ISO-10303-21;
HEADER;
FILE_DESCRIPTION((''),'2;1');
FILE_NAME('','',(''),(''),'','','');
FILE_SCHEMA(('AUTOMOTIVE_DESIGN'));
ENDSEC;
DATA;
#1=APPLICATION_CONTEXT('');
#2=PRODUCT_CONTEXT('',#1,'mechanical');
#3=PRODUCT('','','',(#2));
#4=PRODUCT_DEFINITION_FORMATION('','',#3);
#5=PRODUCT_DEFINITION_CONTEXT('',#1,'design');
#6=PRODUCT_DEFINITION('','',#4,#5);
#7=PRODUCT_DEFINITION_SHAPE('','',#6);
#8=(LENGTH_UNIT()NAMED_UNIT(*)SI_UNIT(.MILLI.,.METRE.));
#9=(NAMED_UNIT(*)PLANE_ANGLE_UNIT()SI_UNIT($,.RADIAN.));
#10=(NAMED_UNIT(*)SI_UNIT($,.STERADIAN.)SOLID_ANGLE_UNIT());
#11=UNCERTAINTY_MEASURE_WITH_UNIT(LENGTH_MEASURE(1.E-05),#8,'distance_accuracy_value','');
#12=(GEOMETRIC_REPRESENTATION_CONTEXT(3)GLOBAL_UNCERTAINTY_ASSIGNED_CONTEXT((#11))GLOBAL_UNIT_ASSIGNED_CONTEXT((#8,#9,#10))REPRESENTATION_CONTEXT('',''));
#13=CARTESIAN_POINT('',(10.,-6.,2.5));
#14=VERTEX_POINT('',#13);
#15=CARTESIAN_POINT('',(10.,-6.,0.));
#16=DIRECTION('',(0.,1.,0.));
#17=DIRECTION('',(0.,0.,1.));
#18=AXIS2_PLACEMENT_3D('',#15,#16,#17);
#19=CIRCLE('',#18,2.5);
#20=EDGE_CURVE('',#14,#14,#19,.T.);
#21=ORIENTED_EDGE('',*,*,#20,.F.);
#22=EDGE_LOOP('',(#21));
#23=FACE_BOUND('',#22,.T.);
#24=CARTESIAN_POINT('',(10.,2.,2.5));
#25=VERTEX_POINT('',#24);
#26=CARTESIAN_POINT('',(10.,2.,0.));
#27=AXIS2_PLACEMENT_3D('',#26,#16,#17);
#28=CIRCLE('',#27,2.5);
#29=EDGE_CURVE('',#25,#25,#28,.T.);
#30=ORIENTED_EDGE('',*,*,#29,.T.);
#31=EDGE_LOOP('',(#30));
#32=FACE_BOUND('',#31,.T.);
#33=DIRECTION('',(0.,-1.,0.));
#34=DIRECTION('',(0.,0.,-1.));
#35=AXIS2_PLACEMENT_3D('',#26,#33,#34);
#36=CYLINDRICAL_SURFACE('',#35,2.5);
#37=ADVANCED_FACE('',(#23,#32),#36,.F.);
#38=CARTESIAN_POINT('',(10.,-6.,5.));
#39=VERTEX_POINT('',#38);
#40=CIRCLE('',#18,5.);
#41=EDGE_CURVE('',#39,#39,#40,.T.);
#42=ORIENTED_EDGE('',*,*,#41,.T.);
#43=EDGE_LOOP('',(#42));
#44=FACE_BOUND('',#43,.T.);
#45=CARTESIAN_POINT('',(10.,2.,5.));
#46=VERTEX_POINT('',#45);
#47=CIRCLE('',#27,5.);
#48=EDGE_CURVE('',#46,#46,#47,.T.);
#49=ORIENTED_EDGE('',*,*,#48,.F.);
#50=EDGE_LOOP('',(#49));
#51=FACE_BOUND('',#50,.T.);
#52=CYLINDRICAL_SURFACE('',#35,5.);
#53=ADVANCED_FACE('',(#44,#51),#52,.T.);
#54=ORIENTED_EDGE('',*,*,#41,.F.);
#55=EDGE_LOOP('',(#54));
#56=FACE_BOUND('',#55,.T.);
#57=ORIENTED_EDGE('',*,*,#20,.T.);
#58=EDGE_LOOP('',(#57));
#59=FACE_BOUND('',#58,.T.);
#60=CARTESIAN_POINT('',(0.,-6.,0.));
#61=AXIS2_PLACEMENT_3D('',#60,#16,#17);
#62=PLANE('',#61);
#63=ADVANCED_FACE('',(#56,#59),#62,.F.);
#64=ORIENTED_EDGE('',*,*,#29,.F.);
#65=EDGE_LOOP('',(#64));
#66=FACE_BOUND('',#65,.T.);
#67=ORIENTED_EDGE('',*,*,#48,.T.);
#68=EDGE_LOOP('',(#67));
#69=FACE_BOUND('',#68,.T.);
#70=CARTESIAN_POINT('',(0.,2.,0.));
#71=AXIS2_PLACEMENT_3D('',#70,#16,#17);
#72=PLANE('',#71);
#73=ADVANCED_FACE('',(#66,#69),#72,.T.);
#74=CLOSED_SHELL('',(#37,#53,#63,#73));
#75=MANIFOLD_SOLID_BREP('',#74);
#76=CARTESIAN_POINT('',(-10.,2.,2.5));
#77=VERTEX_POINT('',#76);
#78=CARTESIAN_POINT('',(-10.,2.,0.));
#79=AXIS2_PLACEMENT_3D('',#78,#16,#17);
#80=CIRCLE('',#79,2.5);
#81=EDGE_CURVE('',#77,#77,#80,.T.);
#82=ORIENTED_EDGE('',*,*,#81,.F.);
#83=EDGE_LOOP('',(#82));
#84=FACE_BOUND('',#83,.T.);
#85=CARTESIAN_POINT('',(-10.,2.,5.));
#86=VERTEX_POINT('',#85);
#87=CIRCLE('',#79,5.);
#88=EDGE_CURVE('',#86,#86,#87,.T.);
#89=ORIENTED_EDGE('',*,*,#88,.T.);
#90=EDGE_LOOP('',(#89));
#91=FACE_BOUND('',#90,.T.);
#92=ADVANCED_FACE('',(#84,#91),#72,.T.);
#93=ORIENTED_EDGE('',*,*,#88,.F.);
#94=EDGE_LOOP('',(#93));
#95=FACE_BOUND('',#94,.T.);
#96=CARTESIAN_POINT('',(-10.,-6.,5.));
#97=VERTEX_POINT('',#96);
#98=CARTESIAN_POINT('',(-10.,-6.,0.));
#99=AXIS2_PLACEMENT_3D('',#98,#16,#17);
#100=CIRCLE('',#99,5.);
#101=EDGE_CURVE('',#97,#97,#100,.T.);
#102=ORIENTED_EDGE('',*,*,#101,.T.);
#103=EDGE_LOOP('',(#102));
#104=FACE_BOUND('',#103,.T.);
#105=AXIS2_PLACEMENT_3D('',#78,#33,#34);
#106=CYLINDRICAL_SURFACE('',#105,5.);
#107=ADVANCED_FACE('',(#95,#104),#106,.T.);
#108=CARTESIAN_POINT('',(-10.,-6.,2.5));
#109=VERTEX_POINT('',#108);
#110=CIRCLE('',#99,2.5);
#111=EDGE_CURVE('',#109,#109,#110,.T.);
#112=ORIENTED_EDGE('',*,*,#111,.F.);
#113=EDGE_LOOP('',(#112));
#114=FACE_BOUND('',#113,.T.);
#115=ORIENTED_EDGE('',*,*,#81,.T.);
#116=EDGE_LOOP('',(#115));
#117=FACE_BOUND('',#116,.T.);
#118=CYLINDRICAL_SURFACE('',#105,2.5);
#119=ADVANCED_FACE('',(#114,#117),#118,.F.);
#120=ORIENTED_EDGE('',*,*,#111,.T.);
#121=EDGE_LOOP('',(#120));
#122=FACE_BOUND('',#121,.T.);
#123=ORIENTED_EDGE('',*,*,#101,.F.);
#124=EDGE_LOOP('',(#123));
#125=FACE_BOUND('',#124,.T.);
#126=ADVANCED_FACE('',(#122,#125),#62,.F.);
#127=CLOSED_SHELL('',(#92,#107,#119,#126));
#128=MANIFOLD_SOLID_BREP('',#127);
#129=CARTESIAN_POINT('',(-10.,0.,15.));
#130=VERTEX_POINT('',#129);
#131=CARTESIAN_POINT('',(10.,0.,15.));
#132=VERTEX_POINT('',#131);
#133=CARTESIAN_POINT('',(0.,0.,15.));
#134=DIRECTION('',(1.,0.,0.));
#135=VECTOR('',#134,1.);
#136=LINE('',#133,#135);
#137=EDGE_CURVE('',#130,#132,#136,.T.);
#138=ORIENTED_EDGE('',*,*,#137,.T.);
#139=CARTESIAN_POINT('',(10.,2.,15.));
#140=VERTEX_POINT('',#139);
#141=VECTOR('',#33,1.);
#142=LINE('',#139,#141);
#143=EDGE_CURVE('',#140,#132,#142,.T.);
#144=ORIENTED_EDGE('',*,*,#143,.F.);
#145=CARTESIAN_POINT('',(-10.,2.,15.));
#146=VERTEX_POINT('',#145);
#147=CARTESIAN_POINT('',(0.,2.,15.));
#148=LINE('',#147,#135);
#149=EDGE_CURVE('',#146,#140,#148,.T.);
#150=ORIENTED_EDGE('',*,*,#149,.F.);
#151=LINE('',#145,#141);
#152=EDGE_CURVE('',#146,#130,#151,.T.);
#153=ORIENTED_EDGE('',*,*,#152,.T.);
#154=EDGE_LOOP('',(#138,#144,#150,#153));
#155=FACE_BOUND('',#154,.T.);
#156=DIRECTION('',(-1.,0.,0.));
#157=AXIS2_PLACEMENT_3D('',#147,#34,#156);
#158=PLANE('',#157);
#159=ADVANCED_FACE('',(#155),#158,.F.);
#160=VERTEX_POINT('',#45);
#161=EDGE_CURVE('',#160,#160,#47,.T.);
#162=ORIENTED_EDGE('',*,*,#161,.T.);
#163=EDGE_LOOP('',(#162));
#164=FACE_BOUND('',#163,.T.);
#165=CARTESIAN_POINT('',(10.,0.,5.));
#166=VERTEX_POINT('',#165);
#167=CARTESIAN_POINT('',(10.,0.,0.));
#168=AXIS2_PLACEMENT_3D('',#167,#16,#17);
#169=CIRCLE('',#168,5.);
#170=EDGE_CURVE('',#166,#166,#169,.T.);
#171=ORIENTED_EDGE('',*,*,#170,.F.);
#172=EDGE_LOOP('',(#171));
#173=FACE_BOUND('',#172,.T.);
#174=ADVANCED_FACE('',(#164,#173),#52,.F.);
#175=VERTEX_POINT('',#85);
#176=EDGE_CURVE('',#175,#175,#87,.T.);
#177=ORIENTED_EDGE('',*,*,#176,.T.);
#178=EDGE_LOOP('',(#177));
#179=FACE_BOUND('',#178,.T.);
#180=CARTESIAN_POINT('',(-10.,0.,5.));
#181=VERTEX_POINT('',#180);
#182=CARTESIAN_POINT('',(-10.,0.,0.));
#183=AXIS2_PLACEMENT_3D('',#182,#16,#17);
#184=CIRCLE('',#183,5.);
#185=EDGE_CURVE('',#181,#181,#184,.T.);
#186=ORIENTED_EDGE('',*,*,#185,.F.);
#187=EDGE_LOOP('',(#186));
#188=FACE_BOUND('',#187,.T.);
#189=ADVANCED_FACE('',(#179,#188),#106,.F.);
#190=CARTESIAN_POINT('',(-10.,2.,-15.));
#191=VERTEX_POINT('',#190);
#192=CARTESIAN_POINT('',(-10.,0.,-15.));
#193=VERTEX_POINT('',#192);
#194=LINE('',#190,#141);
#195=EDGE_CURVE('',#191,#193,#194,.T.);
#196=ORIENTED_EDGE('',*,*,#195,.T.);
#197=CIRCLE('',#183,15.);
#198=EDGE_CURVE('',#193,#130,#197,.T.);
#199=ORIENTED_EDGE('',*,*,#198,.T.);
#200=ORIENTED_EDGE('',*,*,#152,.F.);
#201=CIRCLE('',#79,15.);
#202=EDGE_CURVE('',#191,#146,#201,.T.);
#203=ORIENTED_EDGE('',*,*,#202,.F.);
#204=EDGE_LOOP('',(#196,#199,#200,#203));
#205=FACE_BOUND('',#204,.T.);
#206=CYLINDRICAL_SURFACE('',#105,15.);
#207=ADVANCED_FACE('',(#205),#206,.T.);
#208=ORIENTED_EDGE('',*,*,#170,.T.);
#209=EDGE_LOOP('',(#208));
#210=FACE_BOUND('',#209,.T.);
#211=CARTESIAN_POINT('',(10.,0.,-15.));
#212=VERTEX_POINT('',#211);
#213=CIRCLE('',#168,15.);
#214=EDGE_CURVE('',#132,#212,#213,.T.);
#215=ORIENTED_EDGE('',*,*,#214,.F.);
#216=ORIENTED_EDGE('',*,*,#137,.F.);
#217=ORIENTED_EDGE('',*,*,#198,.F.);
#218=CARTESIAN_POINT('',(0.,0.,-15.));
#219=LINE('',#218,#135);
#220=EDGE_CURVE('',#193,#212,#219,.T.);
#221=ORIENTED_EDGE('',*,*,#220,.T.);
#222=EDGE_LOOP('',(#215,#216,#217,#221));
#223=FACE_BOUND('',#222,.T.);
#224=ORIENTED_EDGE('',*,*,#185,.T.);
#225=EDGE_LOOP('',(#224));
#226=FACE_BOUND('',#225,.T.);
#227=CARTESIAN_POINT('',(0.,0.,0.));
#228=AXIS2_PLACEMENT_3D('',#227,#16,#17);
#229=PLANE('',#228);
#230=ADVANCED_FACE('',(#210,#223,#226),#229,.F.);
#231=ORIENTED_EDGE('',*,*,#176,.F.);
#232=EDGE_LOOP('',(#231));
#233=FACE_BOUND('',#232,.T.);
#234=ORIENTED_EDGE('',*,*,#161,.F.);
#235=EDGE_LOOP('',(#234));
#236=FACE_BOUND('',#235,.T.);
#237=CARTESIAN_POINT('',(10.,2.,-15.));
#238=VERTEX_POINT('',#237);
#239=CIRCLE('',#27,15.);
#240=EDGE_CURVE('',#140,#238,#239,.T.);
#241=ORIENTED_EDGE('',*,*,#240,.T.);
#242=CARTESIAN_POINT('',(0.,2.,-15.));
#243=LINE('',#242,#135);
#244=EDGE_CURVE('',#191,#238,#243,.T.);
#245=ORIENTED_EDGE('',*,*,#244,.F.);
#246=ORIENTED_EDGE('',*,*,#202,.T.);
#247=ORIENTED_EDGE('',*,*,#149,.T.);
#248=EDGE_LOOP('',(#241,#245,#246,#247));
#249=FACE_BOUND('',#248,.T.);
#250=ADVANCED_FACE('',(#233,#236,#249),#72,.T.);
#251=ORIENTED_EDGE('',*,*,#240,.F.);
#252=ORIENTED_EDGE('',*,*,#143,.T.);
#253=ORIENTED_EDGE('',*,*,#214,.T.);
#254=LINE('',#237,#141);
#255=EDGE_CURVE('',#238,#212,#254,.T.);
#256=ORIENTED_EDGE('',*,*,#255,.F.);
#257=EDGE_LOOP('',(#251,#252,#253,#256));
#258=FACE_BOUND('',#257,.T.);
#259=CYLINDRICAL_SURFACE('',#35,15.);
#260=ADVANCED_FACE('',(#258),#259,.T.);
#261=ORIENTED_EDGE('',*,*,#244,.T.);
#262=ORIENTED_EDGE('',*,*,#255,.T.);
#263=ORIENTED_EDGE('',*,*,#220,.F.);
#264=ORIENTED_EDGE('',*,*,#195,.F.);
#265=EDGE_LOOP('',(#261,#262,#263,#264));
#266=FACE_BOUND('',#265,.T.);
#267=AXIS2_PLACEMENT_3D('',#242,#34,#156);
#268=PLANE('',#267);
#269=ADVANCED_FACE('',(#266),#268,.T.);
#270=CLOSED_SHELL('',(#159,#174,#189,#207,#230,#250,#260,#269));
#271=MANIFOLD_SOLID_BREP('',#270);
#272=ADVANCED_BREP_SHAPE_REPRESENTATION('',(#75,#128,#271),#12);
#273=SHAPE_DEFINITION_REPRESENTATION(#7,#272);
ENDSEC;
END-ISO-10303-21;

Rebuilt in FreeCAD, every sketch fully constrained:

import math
import FreeCAD as App
import Part
import Sketcher

doc = App.newDocument("Part")
body = doc.addObject("PartDesign::Body", "Body")

sketch1 = body.newObject("Sketcher::SketchObject", "Sketch")
sketch1.AttachmentSupport = (doc.getObject("XZ_Plane"), [""])
sketch1.MapMode = "FlatFace"
sketch1.addGeometry([
    Part.LineSegment(App.Vector(10, -15, 0), App.Vector(-10, -15, 0)),
    Part.ArcOfCircle(Part.Circle(App.Vector(-10, 0, 0), App.Vector(0, 0, 1), 15), math.radians(90), math.radians(270)),
    Part.LineSegment(App.Vector(-10, 15, 0), App.Vector(10, 15, 0)),
    Part.ArcOfCircle(Part.Circle(App.Vector(10, 0, 0), App.Vector(0, 0, 1), 15), math.radians(-90), math.radians(90)),
    Part.Circle(App.Vector(10, 0, 0), App.Vector(0, 0, 1), 5),
    Part.Circle(App.Vector(-10, 0, 0), App.Vector(0, 0, 1), 5),
], False)
sketch1.addConstraint([
    Sketcher.Constraint("Tangent", 0, 2, 1, 2),
    Sketcher.Constraint("Tangent", 1, 1, 2, 1),
    Sketcher.Constraint("Tangent", 2, 2, 3, 2),
    Sketcher.Constraint("Tangent", 3, 1, 0, 1),
    Sketcher.Constraint("Horizontal", 0),
    Sketcher.Constraint("Horizontal", 2),
    Sketcher.Constraint("Coincident", 4, 3, 3, 3),
    Sketcher.Constraint("Coincident", 5, 3, 1, 3),
    Sketcher.Constraint("Equal", 4, 5),
    Sketcher.Constraint("Symmetric", 1, 3, 3, 3, -1, 1),
    Sketcher.Constraint("Diameter", 4, 10.0),
    Sketcher.Constraint("Radius", 1, 15.0),
    Sketcher.Constraint("DistanceX", 0, 2, 0, 1, 20.0),
])
pad1 = body.newObject("PartDesign::Pad", "Pad")
pad1.Profile = sketch1
pad1.Length = 2
pad1.Reversed = True
body2 = doc.addObject("PartDesign::Body", "Body001")

sketch2 = body2.newObject("Sketcher::SketchObject", "Sketch001")
sketch2.AttachmentSupport = (doc.getObject("XZ_Plane001"), [""])
sketch2.MapMode = "FlatFace"
sketch2.addGeometry([
    Part.Circle(App.Vector(-10, 0, 0), App.Vector(0, 0, 1), 5),
    Part.Circle(App.Vector(-10, 0, 0), App.Vector(0, 0, 1), 2.5),
], False)
sketch2.addConstraint([
    Sketcher.Constraint("Coincident", 1, 3, 0, 3),
    Sketcher.Constraint("PointOnObject", 0, 3, -1),
    Sketcher.Constraint("Diameter", 0, 10.0),
    Sketcher.Constraint("Diameter", 1, 5.0),
    Sketcher.Constraint("DistanceX", 0, 3, -1, 1, 10.0),
])
pad2 = body2.newObject("PartDesign::Pad", "Pad001")
pad2.Profile = sketch2
pad2.Type = "TwoLengths"
pad2.Length = 2
pad2.Length2 = 6
pad2.Reversed = True
body3 = doc.addObject("PartDesign::Body", "Body002")

sketch3 = body3.newObject("Sketcher::SketchObject", "Sketch002")
sketch3.AttachmentSupport = (doc.getObject("XZ_Plane002"), [""])
sketch3.MapMode = "FlatFace"
sketch3.addGeometry([
    Part.Circle(App.Vector(10, 0, 0), App.Vector(0, 0, 1), 5),
    Part.Circle(App.Vector(10, 0, 0), App.Vector(0, 0, 1), 2.5),
], False)
sketch3.addConstraint([
    Sketcher.Constraint("Coincident", 1, 3, 0, 3),
    Sketcher.Constraint("PointOnObject", 0, 3, -1),
    Sketcher.Constraint("Diameter", 0, 10.0),
    Sketcher.Constraint("Diameter", 1, 5.0),
    Sketcher.Constraint("DistanceX", -1, 1, 0, 3, 10.0),
])
pad3 = body3.newObject("PartDesign::Pad", "Pad002")
pad3.Profile = sketch3
pad3.Type = "TwoLengths"
pad3.Length = 2
pad3.Length2 = 6
pad3.Reversed = True

doc.recompute()
